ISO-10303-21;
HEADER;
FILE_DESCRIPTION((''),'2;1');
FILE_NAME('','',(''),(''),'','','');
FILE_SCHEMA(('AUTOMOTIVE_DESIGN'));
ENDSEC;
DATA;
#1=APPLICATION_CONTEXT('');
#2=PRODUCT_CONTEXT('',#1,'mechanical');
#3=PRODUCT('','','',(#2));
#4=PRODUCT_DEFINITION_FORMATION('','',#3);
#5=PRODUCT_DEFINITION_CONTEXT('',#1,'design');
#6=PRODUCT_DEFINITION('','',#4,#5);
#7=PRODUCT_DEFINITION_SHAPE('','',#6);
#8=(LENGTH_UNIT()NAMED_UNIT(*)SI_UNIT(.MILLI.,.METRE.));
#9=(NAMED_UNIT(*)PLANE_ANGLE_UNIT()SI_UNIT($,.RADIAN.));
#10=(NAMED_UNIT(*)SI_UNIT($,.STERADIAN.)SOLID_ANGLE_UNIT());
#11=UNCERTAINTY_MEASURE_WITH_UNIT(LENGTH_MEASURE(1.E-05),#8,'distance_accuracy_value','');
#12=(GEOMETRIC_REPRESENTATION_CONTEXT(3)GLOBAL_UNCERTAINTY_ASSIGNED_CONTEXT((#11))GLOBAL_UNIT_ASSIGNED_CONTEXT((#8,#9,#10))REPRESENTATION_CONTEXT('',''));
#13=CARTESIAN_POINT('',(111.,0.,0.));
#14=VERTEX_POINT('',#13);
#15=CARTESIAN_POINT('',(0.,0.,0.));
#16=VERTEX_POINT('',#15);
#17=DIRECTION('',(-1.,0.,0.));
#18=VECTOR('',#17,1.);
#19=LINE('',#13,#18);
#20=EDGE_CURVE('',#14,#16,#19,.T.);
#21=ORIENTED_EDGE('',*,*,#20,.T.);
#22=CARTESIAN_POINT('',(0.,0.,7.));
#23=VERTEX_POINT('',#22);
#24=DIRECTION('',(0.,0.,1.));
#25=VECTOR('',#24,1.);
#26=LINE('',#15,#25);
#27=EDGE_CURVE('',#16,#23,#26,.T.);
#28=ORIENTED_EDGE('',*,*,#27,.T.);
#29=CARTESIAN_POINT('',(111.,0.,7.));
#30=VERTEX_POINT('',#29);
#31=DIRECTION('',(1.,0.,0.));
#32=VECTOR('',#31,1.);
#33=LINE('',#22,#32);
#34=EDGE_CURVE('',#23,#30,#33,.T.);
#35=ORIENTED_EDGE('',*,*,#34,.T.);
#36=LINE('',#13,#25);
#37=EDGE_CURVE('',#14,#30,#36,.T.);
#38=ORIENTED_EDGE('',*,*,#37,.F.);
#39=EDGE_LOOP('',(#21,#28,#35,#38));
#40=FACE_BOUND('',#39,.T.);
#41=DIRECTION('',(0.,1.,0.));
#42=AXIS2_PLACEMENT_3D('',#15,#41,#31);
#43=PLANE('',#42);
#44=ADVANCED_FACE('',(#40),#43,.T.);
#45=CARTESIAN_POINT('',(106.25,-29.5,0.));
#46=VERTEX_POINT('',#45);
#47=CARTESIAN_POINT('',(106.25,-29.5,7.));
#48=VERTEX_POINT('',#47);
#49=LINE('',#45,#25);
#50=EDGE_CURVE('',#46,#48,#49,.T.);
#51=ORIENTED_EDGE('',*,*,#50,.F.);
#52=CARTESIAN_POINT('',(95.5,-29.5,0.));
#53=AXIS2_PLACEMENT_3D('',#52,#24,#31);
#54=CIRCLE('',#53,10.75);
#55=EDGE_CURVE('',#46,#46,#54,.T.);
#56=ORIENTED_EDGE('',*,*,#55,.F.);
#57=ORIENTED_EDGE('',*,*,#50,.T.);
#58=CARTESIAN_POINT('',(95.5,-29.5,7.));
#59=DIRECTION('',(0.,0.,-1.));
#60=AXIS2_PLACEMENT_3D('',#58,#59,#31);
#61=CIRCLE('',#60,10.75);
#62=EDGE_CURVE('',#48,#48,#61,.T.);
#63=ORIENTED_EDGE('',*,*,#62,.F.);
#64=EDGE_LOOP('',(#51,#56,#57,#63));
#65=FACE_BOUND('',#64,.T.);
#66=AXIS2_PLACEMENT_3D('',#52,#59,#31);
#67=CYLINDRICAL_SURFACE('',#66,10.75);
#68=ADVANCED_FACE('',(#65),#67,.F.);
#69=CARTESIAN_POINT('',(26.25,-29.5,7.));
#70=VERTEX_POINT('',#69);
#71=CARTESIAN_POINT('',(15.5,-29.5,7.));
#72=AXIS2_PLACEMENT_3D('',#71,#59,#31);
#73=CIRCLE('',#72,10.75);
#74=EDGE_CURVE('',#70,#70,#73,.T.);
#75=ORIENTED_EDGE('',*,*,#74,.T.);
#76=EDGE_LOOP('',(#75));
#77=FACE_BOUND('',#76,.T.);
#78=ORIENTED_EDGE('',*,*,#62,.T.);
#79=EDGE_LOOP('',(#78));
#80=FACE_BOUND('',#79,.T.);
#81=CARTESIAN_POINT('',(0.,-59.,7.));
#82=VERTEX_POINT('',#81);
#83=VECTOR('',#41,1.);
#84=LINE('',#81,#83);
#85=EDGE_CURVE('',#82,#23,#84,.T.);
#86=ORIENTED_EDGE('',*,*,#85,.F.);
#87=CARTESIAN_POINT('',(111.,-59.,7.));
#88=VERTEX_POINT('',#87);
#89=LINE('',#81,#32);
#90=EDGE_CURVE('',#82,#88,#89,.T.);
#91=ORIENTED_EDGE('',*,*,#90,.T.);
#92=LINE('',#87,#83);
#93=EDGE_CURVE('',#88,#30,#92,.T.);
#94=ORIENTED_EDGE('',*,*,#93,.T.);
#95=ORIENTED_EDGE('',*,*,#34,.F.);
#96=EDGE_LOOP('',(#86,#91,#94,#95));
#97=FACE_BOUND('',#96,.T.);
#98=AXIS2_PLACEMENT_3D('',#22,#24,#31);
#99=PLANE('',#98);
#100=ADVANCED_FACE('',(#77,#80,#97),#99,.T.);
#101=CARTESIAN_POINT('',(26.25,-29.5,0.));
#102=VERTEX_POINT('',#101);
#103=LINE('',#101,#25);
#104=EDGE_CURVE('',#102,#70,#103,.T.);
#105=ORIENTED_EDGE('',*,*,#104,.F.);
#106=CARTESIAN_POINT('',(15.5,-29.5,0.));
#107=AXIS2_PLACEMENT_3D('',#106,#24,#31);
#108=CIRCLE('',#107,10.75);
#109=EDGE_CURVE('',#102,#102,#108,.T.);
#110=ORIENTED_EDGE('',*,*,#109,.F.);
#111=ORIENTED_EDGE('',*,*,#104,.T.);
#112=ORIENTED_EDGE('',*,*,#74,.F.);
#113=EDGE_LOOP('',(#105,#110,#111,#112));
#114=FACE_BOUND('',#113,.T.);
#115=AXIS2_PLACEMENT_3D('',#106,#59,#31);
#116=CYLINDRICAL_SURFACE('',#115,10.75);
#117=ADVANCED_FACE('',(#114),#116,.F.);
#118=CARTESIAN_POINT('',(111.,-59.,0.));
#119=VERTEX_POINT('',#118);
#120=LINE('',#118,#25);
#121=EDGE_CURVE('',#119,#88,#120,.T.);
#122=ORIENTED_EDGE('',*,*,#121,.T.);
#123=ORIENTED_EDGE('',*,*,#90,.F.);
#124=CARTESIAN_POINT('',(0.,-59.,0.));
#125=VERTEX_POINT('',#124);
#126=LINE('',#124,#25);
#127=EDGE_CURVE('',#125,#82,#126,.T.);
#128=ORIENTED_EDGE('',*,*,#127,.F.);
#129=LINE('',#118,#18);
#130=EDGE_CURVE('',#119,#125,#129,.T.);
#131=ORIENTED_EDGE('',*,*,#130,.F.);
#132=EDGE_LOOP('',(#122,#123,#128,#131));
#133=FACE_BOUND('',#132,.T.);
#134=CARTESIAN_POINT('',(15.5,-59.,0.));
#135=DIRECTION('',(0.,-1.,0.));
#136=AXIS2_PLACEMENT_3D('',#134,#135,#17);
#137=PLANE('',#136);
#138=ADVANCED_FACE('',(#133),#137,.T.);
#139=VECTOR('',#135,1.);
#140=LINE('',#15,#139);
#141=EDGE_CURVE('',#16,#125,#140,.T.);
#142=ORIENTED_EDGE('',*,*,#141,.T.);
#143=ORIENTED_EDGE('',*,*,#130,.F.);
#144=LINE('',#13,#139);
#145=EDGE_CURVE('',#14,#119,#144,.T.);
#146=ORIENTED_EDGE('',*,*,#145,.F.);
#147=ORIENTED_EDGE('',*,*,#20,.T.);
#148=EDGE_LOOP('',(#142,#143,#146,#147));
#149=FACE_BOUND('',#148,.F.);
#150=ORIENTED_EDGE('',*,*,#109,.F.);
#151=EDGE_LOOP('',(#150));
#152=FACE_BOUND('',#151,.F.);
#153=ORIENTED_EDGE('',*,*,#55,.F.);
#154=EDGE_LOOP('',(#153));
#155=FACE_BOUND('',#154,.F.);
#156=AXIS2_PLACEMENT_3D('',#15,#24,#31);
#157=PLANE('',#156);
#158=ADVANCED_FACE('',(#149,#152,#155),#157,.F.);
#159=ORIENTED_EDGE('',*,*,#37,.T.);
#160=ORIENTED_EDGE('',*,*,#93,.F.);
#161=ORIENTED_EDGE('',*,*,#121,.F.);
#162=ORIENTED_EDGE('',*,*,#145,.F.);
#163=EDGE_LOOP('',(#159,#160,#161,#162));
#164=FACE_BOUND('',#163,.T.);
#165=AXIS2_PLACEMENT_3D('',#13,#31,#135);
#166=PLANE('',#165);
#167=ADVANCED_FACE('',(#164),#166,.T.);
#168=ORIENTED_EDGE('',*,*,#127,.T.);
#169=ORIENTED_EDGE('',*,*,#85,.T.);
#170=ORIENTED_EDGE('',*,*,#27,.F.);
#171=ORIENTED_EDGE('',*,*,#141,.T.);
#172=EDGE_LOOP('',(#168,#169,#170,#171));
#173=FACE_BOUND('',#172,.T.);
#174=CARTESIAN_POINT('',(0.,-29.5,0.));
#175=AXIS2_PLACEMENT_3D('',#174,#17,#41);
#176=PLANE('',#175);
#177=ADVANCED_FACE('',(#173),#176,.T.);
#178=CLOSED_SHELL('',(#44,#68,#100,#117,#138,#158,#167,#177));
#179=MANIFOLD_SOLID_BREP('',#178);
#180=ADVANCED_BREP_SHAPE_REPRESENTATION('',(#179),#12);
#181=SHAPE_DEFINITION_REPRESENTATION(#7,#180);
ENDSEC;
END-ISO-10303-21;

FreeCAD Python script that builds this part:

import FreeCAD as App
import Part
import Sketcher
from FreeCAD import Vector
Q = App.Units.Quantity

doc = App.newDocument("Part")
body = doc.addObject("PartDesign::Body", "Body")

# Sketch on XY plane
sketch1 = doc.addObject("Sketcher::SketchObject", "Sketch")
body.addObject(sketch1)
sketch1.AttachmentSupport = (doc.XY_Plane, [""])
sketch1.MapMode = "FlatFace"
sketch1.addGeometry([
    Part.LineSegment(Vector(0, 0, 0), Vector(0, -59, 0)),  # 0
    Part.LineSegment(Vector(0, -59, 0), Vector(111, -59, 0)),  # 1
    Part.LineSegment(Vector(111, -59, 0), Vector(111, 0, 0)),  # 2
    Part.LineSegment(Vector(111, 0, 0), Vector(0, 0, 0)),  # 3
    Part.Circle(Vector(15.5, -29.5, 0), Vector(0, 0, 1), 10.75),  # 4
    Part.Circle(Vector(95.5, -29.5, 0), Vector(0, 0, 1), 10.75),  # 5
], False)
sketch1.addConstraint([
    Sketcher.Constraint("Coincident", 0, 2, 1, 1),
    Sketcher.Constraint("Coincident", 1, 2, 2, 1),
    Sketcher.Constraint("Coincident", 2, 2, 3, 1),
    Sketcher.Constraint("Coincident", 3, 2, 0, 1),
    Sketcher.Constraint("Vertical", 0),
    Sketcher.Constraint("Horizontal", 1),
    Sketcher.Constraint("Vertical", 2),
    Sketcher.Constraint("Horizontal", 3),
    Sketcher.Constraint("Coincident", 3, 2, -1, 1),
    Sketcher.Constraint("Equal", 4, 5),
    Sketcher.Constraint("Horizontal", 4, 3, 5, 3),
    Sketcher.Constraint("Diameter", 4, Q("21.5 mm")),
    Sketcher.Constraint("DistanceX", 1, 1, 1, 2, Q("111 mm")),
    Sketcher.Constraint("DistanceY", 0, 2, 0, 1, Q("59 mm")),
    Sketcher.Constraint("DistanceX", -1, 1, 4, 3, Q("15.5 mm")),
    Sketcher.Constraint("DistanceY", 4, 3, -1, 1, Q("29.5 mm")),
    Sketcher.Constraint("DistanceX", 5, 3, 1, 2, Q("15.5 mm")),
])
pad1 = doc.addObject("PartDesign::Pad", "Pad")
body.addObject(pad1)
pad1.Profile = sketch1
pad1.Length = 7

doc.recompute()
